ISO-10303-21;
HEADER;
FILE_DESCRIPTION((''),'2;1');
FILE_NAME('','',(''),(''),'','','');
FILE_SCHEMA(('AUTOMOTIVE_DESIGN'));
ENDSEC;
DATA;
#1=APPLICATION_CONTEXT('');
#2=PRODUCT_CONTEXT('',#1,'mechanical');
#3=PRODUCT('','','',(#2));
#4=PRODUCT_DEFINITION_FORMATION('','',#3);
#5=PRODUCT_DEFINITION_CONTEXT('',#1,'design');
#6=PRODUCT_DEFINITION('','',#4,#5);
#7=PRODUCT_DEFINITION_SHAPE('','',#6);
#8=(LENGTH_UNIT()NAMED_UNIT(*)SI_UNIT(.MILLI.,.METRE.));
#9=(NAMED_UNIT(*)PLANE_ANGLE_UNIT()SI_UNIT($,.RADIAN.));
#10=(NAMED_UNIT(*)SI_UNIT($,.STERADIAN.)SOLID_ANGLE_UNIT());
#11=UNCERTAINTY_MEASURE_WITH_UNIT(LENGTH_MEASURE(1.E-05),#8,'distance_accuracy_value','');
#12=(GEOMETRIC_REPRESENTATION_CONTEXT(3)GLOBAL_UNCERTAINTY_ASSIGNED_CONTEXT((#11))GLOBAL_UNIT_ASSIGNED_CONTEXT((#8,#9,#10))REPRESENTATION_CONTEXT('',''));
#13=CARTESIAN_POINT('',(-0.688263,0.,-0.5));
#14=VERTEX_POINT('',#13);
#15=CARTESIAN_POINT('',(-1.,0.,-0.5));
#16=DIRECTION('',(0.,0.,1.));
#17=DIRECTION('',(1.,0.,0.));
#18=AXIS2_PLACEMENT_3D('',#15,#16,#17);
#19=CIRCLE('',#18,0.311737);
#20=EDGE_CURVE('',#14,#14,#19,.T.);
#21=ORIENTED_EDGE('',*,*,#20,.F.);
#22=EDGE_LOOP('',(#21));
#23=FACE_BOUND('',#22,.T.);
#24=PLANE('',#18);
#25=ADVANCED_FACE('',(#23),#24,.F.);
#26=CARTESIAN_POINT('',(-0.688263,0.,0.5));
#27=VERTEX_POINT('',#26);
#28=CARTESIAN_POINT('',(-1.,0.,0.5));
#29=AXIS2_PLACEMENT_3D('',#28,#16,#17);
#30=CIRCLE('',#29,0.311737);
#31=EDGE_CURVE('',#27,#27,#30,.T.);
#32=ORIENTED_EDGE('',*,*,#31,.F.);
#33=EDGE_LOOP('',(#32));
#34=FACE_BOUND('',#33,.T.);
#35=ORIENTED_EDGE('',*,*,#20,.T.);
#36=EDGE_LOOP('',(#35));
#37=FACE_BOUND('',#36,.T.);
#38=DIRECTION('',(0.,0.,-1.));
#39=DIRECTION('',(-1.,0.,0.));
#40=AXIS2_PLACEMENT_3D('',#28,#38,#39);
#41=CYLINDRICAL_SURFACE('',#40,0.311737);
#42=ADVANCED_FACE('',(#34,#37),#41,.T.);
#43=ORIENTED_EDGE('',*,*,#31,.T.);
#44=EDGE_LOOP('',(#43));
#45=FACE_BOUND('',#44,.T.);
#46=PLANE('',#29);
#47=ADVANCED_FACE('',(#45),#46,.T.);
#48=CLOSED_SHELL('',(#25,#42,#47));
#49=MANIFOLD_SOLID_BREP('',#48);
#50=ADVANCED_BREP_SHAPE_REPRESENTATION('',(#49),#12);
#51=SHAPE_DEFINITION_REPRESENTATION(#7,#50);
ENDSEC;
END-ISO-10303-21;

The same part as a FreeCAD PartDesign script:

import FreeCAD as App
import Part
import Sketcher

V = App.Vector

doc = App.newDocument("Part")
body = doc.addObject("PartDesign::Body", "Body")

sketch1 = body.newObject("Sketcher::SketchObject", "Sketch")
sketch1.AttachmentSupport = (doc.getObject("XY_Plane"), [""])
sketch1.MapMode = "FlatFace"
sketch1.addGeometry(Part.Circle(V(-1, 0, 0), V(0, 0, 1), 0.31), False)
sketch1.addConstraint(Sketcher.Constraint("PointOnObject", 0, 3, -1))
sketch1.addConstraint(Sketcher.Constraint("DistanceX", 0, 3, -1, 1, 1.0))
sketch1.addConstraint(Sketcher.Constraint("Diameter", 0, 0.623473))
pad1 = body.newObject("PartDesign::Pad", "Pad")
pad1.Profile = sketch1
pad1.Length = 1
pad1.Midplane = True

doc.recompute()
